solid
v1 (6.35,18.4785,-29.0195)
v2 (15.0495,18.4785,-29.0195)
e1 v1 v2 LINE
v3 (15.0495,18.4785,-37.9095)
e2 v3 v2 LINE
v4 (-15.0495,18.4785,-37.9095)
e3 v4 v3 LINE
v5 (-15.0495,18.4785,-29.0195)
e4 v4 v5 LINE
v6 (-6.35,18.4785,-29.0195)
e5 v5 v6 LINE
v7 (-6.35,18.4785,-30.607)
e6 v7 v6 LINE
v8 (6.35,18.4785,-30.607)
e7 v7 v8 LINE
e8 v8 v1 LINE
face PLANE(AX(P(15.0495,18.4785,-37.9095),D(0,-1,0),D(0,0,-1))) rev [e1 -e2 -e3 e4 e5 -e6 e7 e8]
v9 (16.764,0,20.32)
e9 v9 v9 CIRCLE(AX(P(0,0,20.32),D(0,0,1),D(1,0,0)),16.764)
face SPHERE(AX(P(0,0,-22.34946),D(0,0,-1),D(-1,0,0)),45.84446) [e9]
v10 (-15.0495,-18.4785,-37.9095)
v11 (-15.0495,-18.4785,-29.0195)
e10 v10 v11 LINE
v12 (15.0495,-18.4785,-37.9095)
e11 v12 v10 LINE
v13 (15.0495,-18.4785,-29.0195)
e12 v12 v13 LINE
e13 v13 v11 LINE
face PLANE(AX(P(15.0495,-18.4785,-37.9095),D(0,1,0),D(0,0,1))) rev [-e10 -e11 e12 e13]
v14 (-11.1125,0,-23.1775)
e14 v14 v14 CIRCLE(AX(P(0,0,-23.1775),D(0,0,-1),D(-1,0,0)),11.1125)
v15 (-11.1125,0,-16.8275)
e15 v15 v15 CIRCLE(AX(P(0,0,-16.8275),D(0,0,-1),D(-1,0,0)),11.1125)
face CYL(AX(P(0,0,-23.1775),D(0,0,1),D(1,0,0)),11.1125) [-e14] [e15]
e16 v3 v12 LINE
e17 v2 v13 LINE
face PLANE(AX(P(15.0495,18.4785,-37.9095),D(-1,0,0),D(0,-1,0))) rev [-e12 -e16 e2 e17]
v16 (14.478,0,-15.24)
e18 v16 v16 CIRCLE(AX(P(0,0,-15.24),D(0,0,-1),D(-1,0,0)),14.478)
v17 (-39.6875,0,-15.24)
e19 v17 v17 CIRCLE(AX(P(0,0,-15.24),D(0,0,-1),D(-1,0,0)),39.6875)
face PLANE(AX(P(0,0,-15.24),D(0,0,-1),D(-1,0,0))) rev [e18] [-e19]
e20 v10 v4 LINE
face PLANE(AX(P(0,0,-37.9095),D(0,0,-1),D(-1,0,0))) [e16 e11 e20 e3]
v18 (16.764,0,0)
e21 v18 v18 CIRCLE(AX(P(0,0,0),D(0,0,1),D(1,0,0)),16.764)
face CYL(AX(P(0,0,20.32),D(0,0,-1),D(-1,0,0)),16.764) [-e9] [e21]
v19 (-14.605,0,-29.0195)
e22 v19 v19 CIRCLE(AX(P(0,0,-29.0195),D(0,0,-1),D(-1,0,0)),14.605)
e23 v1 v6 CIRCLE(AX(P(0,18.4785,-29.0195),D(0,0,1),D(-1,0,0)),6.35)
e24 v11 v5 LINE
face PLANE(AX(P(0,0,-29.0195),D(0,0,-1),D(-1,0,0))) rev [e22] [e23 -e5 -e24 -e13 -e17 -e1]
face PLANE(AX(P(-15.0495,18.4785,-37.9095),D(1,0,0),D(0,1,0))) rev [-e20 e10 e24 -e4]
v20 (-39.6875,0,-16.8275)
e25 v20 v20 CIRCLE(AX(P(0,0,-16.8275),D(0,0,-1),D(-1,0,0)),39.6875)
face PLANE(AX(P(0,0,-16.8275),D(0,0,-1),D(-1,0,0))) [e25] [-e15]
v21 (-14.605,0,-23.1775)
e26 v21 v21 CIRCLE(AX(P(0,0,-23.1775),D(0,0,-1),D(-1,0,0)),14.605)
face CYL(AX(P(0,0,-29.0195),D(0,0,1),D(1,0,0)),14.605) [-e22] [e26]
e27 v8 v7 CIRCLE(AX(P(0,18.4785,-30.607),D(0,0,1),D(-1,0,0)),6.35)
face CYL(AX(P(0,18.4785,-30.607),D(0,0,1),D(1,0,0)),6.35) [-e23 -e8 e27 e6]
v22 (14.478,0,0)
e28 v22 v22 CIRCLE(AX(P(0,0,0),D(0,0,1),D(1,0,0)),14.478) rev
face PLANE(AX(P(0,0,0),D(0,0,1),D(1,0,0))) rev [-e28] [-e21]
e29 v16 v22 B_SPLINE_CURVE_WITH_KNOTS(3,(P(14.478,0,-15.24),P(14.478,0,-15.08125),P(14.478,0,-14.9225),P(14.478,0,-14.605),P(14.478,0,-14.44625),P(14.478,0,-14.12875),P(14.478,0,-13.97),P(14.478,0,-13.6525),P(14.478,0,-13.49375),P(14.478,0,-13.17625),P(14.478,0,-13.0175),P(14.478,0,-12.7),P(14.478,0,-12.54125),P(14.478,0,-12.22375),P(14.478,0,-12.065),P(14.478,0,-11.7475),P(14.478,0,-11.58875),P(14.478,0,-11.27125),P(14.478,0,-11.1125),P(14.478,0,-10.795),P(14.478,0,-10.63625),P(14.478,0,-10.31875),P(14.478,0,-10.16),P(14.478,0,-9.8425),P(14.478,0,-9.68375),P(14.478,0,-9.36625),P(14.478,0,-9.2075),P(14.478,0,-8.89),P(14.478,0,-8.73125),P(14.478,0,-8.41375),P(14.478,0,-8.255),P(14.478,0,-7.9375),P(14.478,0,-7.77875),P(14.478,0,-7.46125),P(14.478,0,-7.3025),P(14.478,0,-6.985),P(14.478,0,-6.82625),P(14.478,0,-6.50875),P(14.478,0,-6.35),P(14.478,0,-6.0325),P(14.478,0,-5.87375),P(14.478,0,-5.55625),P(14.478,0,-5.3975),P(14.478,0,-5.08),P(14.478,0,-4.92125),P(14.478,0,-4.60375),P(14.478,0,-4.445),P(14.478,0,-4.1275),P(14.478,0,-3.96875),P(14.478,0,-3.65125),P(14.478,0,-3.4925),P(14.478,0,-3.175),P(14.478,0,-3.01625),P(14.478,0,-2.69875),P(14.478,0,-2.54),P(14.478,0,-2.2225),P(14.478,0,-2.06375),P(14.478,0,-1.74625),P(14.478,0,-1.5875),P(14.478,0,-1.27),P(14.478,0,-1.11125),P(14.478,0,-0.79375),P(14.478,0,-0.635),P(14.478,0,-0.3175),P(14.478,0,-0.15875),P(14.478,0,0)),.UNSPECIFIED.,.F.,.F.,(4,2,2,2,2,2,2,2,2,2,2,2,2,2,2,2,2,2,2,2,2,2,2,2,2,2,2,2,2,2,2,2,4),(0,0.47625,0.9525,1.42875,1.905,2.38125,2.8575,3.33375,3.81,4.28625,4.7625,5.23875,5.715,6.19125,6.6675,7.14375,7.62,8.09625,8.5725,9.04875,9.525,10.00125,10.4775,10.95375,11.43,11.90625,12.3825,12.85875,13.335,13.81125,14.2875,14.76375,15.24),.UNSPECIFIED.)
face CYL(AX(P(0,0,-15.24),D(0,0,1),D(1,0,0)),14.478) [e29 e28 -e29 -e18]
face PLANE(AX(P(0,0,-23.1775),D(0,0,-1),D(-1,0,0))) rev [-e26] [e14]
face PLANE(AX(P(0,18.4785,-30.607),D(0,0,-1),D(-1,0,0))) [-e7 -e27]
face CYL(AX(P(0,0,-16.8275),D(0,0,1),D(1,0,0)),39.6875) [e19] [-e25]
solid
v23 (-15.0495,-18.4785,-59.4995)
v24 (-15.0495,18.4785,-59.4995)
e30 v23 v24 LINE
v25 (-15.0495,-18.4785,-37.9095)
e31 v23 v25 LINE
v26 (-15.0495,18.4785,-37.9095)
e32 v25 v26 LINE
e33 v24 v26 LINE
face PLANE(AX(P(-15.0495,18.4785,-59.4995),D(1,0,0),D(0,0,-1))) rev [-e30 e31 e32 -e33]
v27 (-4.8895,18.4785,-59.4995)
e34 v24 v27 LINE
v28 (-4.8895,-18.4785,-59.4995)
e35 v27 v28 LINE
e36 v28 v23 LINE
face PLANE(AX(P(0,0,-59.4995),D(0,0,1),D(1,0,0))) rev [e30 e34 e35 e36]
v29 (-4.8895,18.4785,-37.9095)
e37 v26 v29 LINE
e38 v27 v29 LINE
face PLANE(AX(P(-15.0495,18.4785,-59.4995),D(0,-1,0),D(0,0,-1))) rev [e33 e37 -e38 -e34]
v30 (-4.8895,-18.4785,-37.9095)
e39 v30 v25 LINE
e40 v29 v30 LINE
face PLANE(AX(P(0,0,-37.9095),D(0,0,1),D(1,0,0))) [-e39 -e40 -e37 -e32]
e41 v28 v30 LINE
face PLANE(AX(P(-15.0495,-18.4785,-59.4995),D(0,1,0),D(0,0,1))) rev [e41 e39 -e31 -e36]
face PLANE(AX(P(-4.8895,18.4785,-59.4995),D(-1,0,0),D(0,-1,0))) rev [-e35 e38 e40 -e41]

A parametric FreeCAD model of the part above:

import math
import FreeCAD as App
import Part
import Sketcher

V = App.Vector
Q = App.Units.Quantity

doc = App.newDocument("Part")
params = doc.addObject("Spreadsheet::Sheet", "Params")
for row, (alias, value) in enumerate([
    ("sketch1_diameter", "1.32 in"),
    ("pad1_length", "0.8 in"),
    ("sketch2_width", "0.66 in"),
    ("revolution_angle", "360 deg"),
    ("sketch3_diameter", "1.14 in"),
    ("pad2_length", "0.6 in"),
    ("sketch4_diameter", "3.125 in"),
    ("pad3_length", "0.0625 in"),
    ("sketch5_diameter", "0.875 in"),
    ("pad4_length", "0.25 in"),
    ("sketch6_diameter", "1.15 in"),
    ("pad5_length", "0.23 in"),
    ("sketch7_width", "1.185 in"),
    ("sketch7_height", "1.455 in"),
    ("pad6_length", "0.35 in"),
    ("sketch8_radius", "0.25 in"),
    ("pad7_length", "0.0625 in"),
    ("sketch9_width", "0.4 in"),
    ("sketch9_height", "1.455 in"),
    ("pad8_length", "0.85 in"),
], start=1):
    params.set(f"A{row}", alias)
    params.set(f"B{row}", "=" + value)
    params.setAlias(f"B{row}", alias)

body = doc.addObject("PartDesign::Body", "Body")

sketch1 = doc.addObject("Sketcher::SketchObject", "Sketch")
body.addObject(sketch1)
sketch1.AttachmentSupport = (doc.XY_Plane, [""])
sketch1.MapMode = "FlatFace"
sketch1.addGeometry(Part.Circle(V(0, 0, 0), V(0, 0, 1), 17), False)
sketch1.addConstraint([
    Sketcher.Constraint("Coincident", 0, 3, -1, 1),
    Sketcher.Constraint("Diameter", 0, Q("1.32 in")),
])
sketch1.setExpression("Constraints[1]", "Params.sketch1_diameter")
pad1 = doc.addObject("PartDesign::Pad", "Pad")
body.addObject(pad1)
pad1.Profile = sketch1
pad1.setExpression("Length", "Params.pad1_length")

sketch2 = doc.addObject("Sketcher::SketchObject", "Sketch001")
body.addObject(sketch2)
sketch2.AttachmentSupport = (doc.XZ_Plane, [""])
sketch2.MapMode = "FlatFace"
sketch2.addGeometry([
    Part.LineSegment(V(16.8, 20.3, 0), V(0, 20.3, 0)),
    Part.LineSegment(V(0, 20.3, 0), V(0, 23.5, 0)),
    Part.ArcOfCircle(Part.Circle(V(0, -22.3, 0), V(0, 0, 1), 45.8), math.radians(69), math.radians(90)),
], False)
sketch2.addConstraint([
    Sketcher.Constraint("Coincident", 0, 2, 1, 1),
    Sketcher.Constraint("Coincident", 1, 2, 2, 2),
    Sketcher.Constraint("Coincident", 2, 1, 0, 1),
    Sketcher.Constraint("Horizontal", 0),
    Sketcher.Constraint("Vertical", 1),
    Sketcher.Constraint("PointOnObject", 2, 3, -2),
    Sketcher.Constraint("PointOnObject", 0, 2, -2),
    Sketcher.Constraint("DistanceX", 0, 2, 0, 1, Q("0.66 in")),
    Sketcher.Constraint("DistanceY", -1, 1, 0, 2, Q("0.8 in")),
    Sketcher.Constraint("Radius", 2, Q("1.8049 in")),
])
sketch2.setExpression("Constraints[7]", "Params.sketch2_width")
revolution = doc.addObject("PartDesign::Revolution", "Revolution")
body.addObject(revolution)
revolution.Profile = sketch2
revolution.ReferenceAxis = (sketch2, ["V_Axis"])
revolution.setExpression("Angle", "Params.revolution_angle")

sketch3 = doc.addObject("Sketcher::SketchObject", "Sketch002")
body.addObject(sketch3)
sketch3.AttachmentSupport = (doc.XY_Plane, [""])
sketch3.MapMode = "FlatFace"
sketch3.addGeometry(Part.Circle(V(0, 0, 0), V(0, 0, 1), 14), False)
sketch3.addConstraint([
    Sketcher.Constraint("Coincident", 0, 3, -1, 1),
    Sketcher.Constraint("Diameter", 0, Q("1.14 in")),
])
sketch3.setExpression("Constraints[1]", "Params.sketch3_diameter")
pad2 = doc.addObject("PartDesign::Pad", "Pad001")
body.addObject(pad2)
pad2.Profile = sketch3
pad2.setExpression("Length", "Params.pad2_length")
pad2.Reversed = True

sketch4 = doc.addObject("Sketcher::SketchObject", "Sketch003")
body.addObject(sketch4)
sketch4.AttachmentSupport = (doc.XY_Plane, [""])
sketch4.MapMode = "FlatFace"
sketch4.AttachmentOffset = App.Placement(V(0, 0, -0.6 * 25.4), App.Rotation())
sketch4.addGeometry(Part.Circle(V(0, 0, 0), V(0, 0, 1), 40), False)
sketch4.addConstraint([
    Sketcher.Constraint("Coincident", 0, 3, -1, 1),
    Sketcher.Constraint("Diameter", 0, Q("3.125 in")),
])
sketch4.setExpression("Constraints[1]", "Params.sketch4_diameter")
pad3 = doc.addObject("PartDesign::Pad", "Pad002")
body.addObject(pad3)
pad3.Profile = sketch4
pad3.setExpression("Length", "Params.pad3_length")
pad3.Reversed = True

sketch5 = doc.addObject("Sketcher::SketchObject", "Sketch004")
body.addObject(sketch5)
sketch5.AttachmentSupport = (doc.XY_Plane, [""])
sketch5.MapMode = "FlatFace"
sketch5.AttachmentOffset = App.Placement(V(0, 0, -0.6625 * 25.4), App.Rotation())
sketch5.addGeometry(Part.Circle(V(0, 0, 0), V(0, 0, 1), 11), False)
sketch5.addConstraint([
    Sketcher.Constraint("Coincident", 0, 3, -1, 1),
    Sketcher.Constraint("Diameter", 0, Q("0.875 in")),
])
sketch5.setExpression("Constraints[1]", "Params.sketch5_diameter")
pad4 = doc.addObject("PartDesign::Pad", "Pad003")
body.addObject(pad4)
pad4.Profile = sketch5
pad4.setExpression("Length", "Params.pad4_length")
pad4.Reversed = True

sketch6 = doc.addObject("Sketcher::SketchObject", "Sketch005")
body.addObject(sketch6)
sketch6.AttachmentSupport = (doc.XY_Plane, [""])
sketch6.MapMode = "FlatFace"
sketch6.AttachmentOffset = App.Placement(V(0, 0, -0.9125 * 25.4), App.Rotation())
sketch6.addGeometry(Part.Circle(V(0, 0, 0), V(0, 0, 1), 15), False)
sketch6.addConstraint([
    Sketcher.Constraint("Coincident", 0, 3, -1, 1),
    Sketcher.Constraint("Diameter", 0, Q("1.15 in")),
])
sketch6.setExpression("Constraints[1]", "Params.sketch6_diameter")
pad5 = doc.addObject("PartDesign::Pad", "Pad004")
body.addObject(pad5)
pad5.Profile = sketch6
pad5.setExpression("Length", "Params.pad5_length")
pad5.Reversed = True

sketch7 = doc.addObject("Sketcher::SketchObject", "Sketch006")
body.addObject(sketch7)
sketch7.AttachmentSupport = (doc.XY_Plane, [""])
sketch7.MapMode = "FlatFace"
sketch7.AttachmentOffset = App.Placement(V(0, 0, -1.1425 * 25.4), App.Rotation())
sketch7.addGeometry([
    Part.LineSegment(V(15, 18, 0), V(15, -18, 0)),
    Part.LineSegment(V(15, -18, 0), V(-15, -18, 0)),
    Part.LineSegment(V(-15, -18, 0), V(-15, 18, 0)),
    Part.LineSegment(V(-15, 18, 0), V(15, 18, 0)),
], False)
sketch7.addConstraint([
    Sketcher.Constraint("Coincident", 0, 2, 1, 1),
    Sketcher.Constraint("Coincident", 1, 2, 2, 1),
    Sketcher.Constraint("Coincident", 2, 2, 3, 1),
    Sketcher.Constraint("Coincident", 3, 2, 0, 1),
    Sketcher.Constraint("Vertical", 0),
    Sketcher.Constraint("Horizontal", 1),
    Sketcher.Constraint("Vertical", 2),
    Sketcher.Constraint("Horizontal", 3),
    Sketcher.Constraint("Symmetric", 0, 2, 2, 2, -1, 1),
    Sketcher.Constraint("DistanceX", 1, 2, 1, 1, Q("1.185 in")),
    Sketcher.Constraint("DistanceY", 0, 2, 0, 1, Q("1.455 in")),
])
sketch7.setExpression("Constraints[9]", "Params.sketch7_width")
sketch7.setExpression("Constraints[10]", "Params.sketch7_height")
pad6 = doc.addObject("PartDesign::Pad", "Pad005")
body.addObject(pad6)
pad6.Profile = sketch7
pad6.setExpression("Length", "Params.pad6_length")
pad6.Reversed = True

sketch8 = doc.addObject("Sketcher::SketchObject", "Sketch007")
body.addObject(sketch8)
sketch8.AttachmentSupport = (doc.XY_Plane, [""])
sketch8.MapMode = "FlatFace"
sketch8.AttachmentOffset = App.Placement(V(0, 0, -1.1425 * 25.4), App.Rotation())
sketch8.addGeometry([
    Part.LineSegment(V(-6, 18, 0), V(6, 18, 0)),
    Part.ArcOfCircle(Part.Circle(V(0, 18, 0), V(0, 0, 1), 6), math.radians(0), math.radians(180)),
], False)
sketch8.addConstraint([
    Sketcher.Constraint("Coincident", 0, 1, 1, 2),
    Sketcher.Constraint("Coincident", 1, 1, 0, 2),
    Sketcher.Constraint("Horizontal", 0),
    Sketcher.Constraint("PointOnObject", 1, 3, -2),
    Sketcher.Constraint("Horizontal", 1, 3, 0, 1),
    Sketcher.Constraint("Radius", 1, Q("0.25 in")),
    Sketcher.Constraint("DistanceY", -1, 1, 1, 3, Q("0.7275 in")),
])
sketch8.setExpression("Constraints[5]", "Params.sketch8_radius")
pad7 = doc.addObject("PartDesign::Pad", "Pad006")
body.addObject(pad7)
pad7.Profile = sketch8
pad7.setExpression("Length", "Params.pad7_length")
pad7.Reversed = True
body2 = doc.addObject("PartDesign::Body", "Body001")

sketch9 = doc.addObject("Sketcher::SketchObject", "Sketch008")
body2.addObject(sketch9)
sketch9.AttachmentSupport = (doc.getObject("XY_Plane001"), [""])
sketch9.MapMode = "FlatFace"
sketch9.AttachmentOffset = App.Placement(V(0, 0, -1.4925 * 25.4), App.Rotation())
sketch9.addGeometry([
    Part.LineSegment(V(-5, 18, 0), V(-5, -18, 0)),
    Part.LineSegment(V(-5, -18, 0), V(-15, -18, 0)),
    Part.LineSegment(V(-15, -18, 0), V(-15, 18, 0)),
    Part.LineSegment(V(-15, 18, 0), V(-5, 18, 0)),
], False)
sketch9.addConstraint([
    Sketcher.Constraint("Coincident", 0, 2, 1, 1),
    Sketcher.Constraint("Coincident", 1, 2, 2, 1),
    Sketcher.Constraint("Coincident", 2, 2, 3, 1),
    Sketcher.Constraint("Coincident", 3, 2, 0, 1),
    Sketcher.Constraint("Vertical", 0),
    Sketcher.Constraint("Horizontal", 1),
    Sketcher.Constraint("Vertical", 2),
    Sketcher.Constraint("Horizontal", 3),
    Sketcher.Constraint("DistanceX", 1, 2, 1, 1, Q("0.4 in")),
    Sketcher.Constraint("DistanceY", 0, 2, 0, 1, Q("1.455 in")),
    Sketcher.Constraint("DistanceX", 0, 2, -1, 1, Q("0.1925 in")),
    Sketcher.Constraint("DistanceY", 0, 2, -1, 1, Q("0.7275 in")),
])
sketch9.setExpression("Constraints[8]", "Params.sketch9_width")
sketch9.setExpression("Constraints[9]", "Params.sketch9_height")
pad8 = doc.addObject("PartDesign::Pad", "Pad007")
body2.addObject(pad8)
pad8.Profile = sketch9
pad8.setExpression("Length", "Params.pad8_length")
pad8.Reversed = True

doc.recompute()
